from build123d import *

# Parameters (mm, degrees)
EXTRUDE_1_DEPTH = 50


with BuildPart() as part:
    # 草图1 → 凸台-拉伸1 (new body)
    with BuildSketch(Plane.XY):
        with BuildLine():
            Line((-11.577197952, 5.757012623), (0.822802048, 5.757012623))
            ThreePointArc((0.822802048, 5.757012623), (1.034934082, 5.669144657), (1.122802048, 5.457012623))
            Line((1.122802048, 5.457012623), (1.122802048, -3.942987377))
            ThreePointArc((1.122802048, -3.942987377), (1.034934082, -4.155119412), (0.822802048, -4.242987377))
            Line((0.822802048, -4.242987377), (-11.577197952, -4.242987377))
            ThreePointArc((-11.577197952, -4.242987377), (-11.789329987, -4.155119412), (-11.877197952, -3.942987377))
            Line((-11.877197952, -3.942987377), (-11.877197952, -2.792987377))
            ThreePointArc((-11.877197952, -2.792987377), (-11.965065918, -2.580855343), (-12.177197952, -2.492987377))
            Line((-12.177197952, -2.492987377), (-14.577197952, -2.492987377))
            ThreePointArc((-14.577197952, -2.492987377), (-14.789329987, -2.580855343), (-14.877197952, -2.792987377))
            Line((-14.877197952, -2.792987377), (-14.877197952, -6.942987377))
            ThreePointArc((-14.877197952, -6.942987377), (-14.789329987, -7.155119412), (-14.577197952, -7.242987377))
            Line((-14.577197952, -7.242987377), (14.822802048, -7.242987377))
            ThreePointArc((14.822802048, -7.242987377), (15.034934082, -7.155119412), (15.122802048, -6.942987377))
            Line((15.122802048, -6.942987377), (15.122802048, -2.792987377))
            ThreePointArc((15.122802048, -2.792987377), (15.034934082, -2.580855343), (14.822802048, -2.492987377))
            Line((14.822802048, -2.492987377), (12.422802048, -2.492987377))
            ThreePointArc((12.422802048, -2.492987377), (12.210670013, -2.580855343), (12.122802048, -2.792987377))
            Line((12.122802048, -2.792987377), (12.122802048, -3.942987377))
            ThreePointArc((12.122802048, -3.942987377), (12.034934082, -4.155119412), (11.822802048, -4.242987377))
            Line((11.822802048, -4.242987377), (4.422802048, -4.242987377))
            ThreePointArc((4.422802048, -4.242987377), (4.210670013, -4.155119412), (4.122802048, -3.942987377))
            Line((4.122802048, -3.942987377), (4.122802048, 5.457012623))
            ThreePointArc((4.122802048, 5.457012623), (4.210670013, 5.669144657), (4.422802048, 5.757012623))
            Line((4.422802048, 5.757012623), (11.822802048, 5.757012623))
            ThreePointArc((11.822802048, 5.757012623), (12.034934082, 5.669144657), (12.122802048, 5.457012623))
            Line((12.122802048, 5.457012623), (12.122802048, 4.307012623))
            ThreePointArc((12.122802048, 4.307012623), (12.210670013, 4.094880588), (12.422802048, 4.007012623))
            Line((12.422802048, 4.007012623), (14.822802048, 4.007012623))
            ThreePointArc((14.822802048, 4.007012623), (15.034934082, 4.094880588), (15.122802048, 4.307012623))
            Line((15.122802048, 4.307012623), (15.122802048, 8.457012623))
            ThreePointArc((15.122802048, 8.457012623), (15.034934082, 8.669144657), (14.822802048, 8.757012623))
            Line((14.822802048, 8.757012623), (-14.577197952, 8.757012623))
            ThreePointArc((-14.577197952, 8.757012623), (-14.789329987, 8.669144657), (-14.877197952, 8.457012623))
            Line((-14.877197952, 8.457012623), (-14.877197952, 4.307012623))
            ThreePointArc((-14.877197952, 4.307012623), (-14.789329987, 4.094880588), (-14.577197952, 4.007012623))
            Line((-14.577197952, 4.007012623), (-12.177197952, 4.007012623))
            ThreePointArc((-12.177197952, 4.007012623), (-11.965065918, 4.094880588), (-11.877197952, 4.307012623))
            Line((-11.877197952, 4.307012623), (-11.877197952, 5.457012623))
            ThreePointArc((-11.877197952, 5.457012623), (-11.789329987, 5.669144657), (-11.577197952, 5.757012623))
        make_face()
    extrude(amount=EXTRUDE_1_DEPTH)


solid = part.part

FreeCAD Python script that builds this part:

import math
import FreeCAD as App
import Part
import Sketcher
Q = App.Units.Quantity

doc = App.newDocument("Part")
params = doc.addObject("Spreadsheet::Sheet", "Params")
for row, (alias, value) in enumerate([
    ("sketch1_radius", "0.3 mm"),
    ("sketch1_width", "12.4 mm"),
    ("sketch1_width2", "2.4 mm"),
    ("sketch1_width3", "29.4 mm"),
    ("sketch1_width4", "7.4 mm"),
    ("pad1_length", "50 mm"),
], start=1):
    params.set(f"A{row}", alias)
    params.set(f"B{row}", "=" + value)
    params.setAlias(f"B{row}", alias)

body = doc.addObject("PartDesign::Body", "Body")

sketch1 = doc.addObject("Sketcher::SketchObject", "Sketch")
body.addObject(sketch1)
sketch1.AttachmentSupport = (doc.XY_Plane, [""])
sketch1.MapMode = "FlatFace"
sketch1.addGeometry(Part.LineSegment(App.Vector(-11.577198, 5.757013, 0), App.Vector(0.822802, 5.757013, 0)), False)
sketch1.addGeometry(Part.ArcOfCircle(Part.Circle(App.Vector(0.822802, 5.457013, 0), App.Vector(0, 0, 1), 0.3), math.radians(0), math.radians(90)), False)
sketch1.addGeometry(Part.LineSegment(App.Vector(1.122802, 5.457013, 0), App.Vector(1.122802, -3.942987, 0)), False)
sketch1.addGeometry(Part.ArcOfCircle(Part.Circle(App.Vector(0.822802, -3.942987, 0), App.Vector(0, 0, 1), 0.3), math.radians(-90), math.radians(0)), False)
sketch1.addGeometry(Part.LineSegment(App.Vector(0.822802, -4.242987, 0), App.Vector(-11.577198, -4.242987, 0)), False)
sketch1.addGeometry(Part.ArcOfCircle(Part.Circle(App.Vector(-11.577198, -3.942987, 0), App.Vector(0, 0, 1), 0.3), math.radians(180), math.radians(270)), False)
sketch1.addGeometry(Part.LineSegment(App.Vector(-11.877198, -3.942987, 0), App.Vector(-11.877198, -2.792987, 0)), False)
sketch1.addGeometry(Part.ArcOfCircle(Part.Circle(App.Vector(-12.177198, -2.792987, 0), App.Vector(0, 0, 1), 0.3), math.radians(0), math.radians(90)), False)
sketch1.addGeometry(Part.LineSegment(App.Vector(-12.177198, -2.492987, 0), App.Vector(-14.577198, -2.492987, 0)), False)
sketch1.addGeometry(Part.ArcOfCircle(Part.Circle(App.Vector(-14.577198, -2.792987, 0), App.Vector(0, 0, 1), 0.3), math.radians(90), math.radians(180)), False)
sketch1.addGeometry(Part.LineSegment(App.Vector(-14.877198, -2.792987, 0), App.Vector(-14.877198, -6.942987, 0)), False)
sketch1.addGeometry(Part.ArcOfCircle(Part.Circle(App.Vector(-14.577198, -6.942987, 0), App.Vector(0, 0, 1), 0.3), math.radians(180), math.radians(270)), False)
sketch1.addGeometry(Part.LineSegment(App.Vector(-14.577198, -7.242987, 0), App.Vector(14.822802, -7.242987, 0)), False)
sketch1.addGeometry(Part.ArcOfCircle(Part.Circle(App.Vector(14.822802, -6.942987, 0), App.Vector(0, 0, 1), 0.3), math.radians(-90), math.radians(0)), False)
sketch1.addGeometry(Part.LineSegment(App.Vector(15.122802, -6.942987, 0), App.Vector(15.122802, -2.792987, 0)), False)
sketch1.addGeometry(Part.ArcOfCircle(Part.Circle(App.Vector(14.822802, -2.792987, 0), App.Vector(0, 0, 1), 0.3), math.radians(0), math.radians(90)), False)
sketch1.addGeometry(Part.LineSegment(App.Vector(14.822802, -2.492987, 0), App.Vector(12.422802, -2.492987, 0)), False)
sketch1.addGeometry(Part.ArcOfCircle(Part.Circle(App.Vector(12.422802, -2.792987, 0), App.Vector(0, 0, 1), 0.3), math.radians(90), math.radians(180)), False)
sketch1.addGeometry(Part.LineSegment(App.Vector(12.122802, -2.792987, 0), App.Vector(12.122802, -3.942987, 0)), False)
sketch1.addGeometry(Part.ArcOfCircle(Part.Circle(App.Vector(11.822802, -3.942987, 0), App.Vector(0, 0, 1), 0.3), math.radians(-90), math.radians(0)), False)
sketch1.addGeometry(Part.LineSegment(App.Vector(11.822802, -4.242987, 0), App.Vector(4.422802, -4.242987, 0)), False)
sketch1.addGeometry(Part.ArcOfCircle(Part.Circle(App.Vector(4.422802, -3.942987, 0), App.Vector(0, 0, 1), 0.3), math.radians(180), math.radians(270)), False)
sketch1.addGeometry(Part.LineSegment(App.Vector(4.122802, -3.942987, 0), App.Vector(4.122802, 5.457013, 0)), False)
sketch1.addGeometry(Part.ArcOfCircle(Part.Circle(App.Vector(4.422802, 5.457013, 0), App.Vector(0, 0, 1), 0.3), math.radians(90), math.radians(180)), False)
sketch1.addGeometry(Part.LineSegment(App.Vector(4.422802, 5.757013, 0), App.Vector(11.822802, 5.757013, 0)), False)
sketch1.addGeometry(Part.ArcOfCircle(Part.Circle(App.Vector(11.822802, 5.457013, 0), App.Vector(0, 0, 1), 0.3), math.radians(0), math.radians(90)), False)
sketch1.addGeometry(Part.LineSegment(App.Vector(12.122802, 5.457013, 0), App.Vector(12.122802, 4.307013, 0)), False)
sketch1.addGeometry(Part.ArcOfCircle(Part.Circle(App.Vector(12.422802, 4.307013, 0), App.Vector(0, 0, 1), 0.3), math.radians(180), math.radians(270)), False)
sketch1.addGeometry(Part.LineSegment(App.Vector(12.422802, 4.007013, 0), App.Vector(14.822802, 4.007013, 0)), False)
sketch1.addGeometry(Part.ArcOfCircle(Part.Circle(App.Vector(14.822802, 4.307013, 0), App.Vector(0, 0, 1), 0.3), math.radians(-90), math.radians(0)), False)
sketch1.addGeometry(Part.LineSegment(App.Vector(15.122802, 4.307013, 0), App.Vector(15.122802, 8.457013, 0)), False)
sketch1.addGeometry(Part.ArcOfCircle(Part.Circle(App.Vector(14.822802, 8.457013, 0), App.Vector(0, 0, 1), 0.3), math.radians(0), math.radians(90)), False)
sketch1.addGeometry(Part.LineSegment(App.Vector(14.822802, 8.757013, 0), App.Vector(-14.577198, 8.757013, 0)), False)
sketch1.addGeometry(Part.ArcOfCircle(Part.Circle(App.Vector(-14.577198, 8.457013, 0), App.Vector(0, 0, 1), 0.3), math.radians(90), math.radians(180)), False)
sketch1.addGeometry(Part.LineSegment(App.Vector(-14.877198, 8.457013, 0), App.Vector(-14.877198, 4.307013, 0)), False)
sketch1.addGeometry(Part.ArcOfCircle(Part.Circle(App.Vector(-14.577198, 4.307013, 0), App.Vector(0, 0, 1), 0.3), math.radians(180), math.radians(270)), False)
sketch1.addGeometry(Part.LineSegment(App.Vector(-14.577198, 4.007013, 0), App.Vector(-12.177198, 4.007013, 0)), False)
sketch1.addGeometry(Part.ArcOfCircle(Part.Circle(App.Vector(-12.177198, 4.307013, 0), App.Vector(0, 0, 1), 0.3), math.radians(-90), math.radians(0)), False)
sketch1.addGeometry(Part.LineSegment(App.Vector(-11.877198, 4.307013, 0), App.Vector(-11.877198, 5.457013, 0)), False)
sketch1.addGeometry(Part.ArcOfCircle(Part.Circle(App.Vector(-11.577198, 5.457013, 0), App.Vector(0, 0, 1), 0.3), math.radians(90), math.radians(180)), False)
sketch1.addConstraint(Sketcher.Constraint("Tangent", 0, 2, 1, 2))
sketch1.addConstraint(Sketcher.Constraint("Tangent", 1, 1, 2, 1))
sketch1.addConstraint(Sketcher.Constraint("Tangent", 2, 2, 3, 2))
sketch1.addConstraint(Sketcher.Constraint("Tangent", 3, 1, 4, 1))
sketch1.addConstraint(Sketcher.Constraint("Tangent", 4, 2, 5, 2))
sketch1.addConstraint(Sketcher.Constraint("Tangent", 5, 1, 6, 1))
sketch1.addConstraint(Sketcher.Constraint("Tangent", 6, 2, 7, 1))
sketch1.addConstraint(Sketcher.Constraint("Tangent", 7, 2, 8, 1))
sketch1.addConstraint(Sketcher.Constraint("Tangent", 8, 2, 9, 1))
sketch1.addConstraint(Sketcher.Constraint("Tangent", 9, 2, 10, 1))
sketch1.addConstraint(Sketcher.Constraint("Tangent", 10, 2, 11, 1))
sketch1.addConstraint(Sketcher.Constraint("Tangent", 11, 2, 12, 1))
sketch1.addConstraint(Sketcher.Constraint("Tangent", 12, 2, 13, 1))
sketch1.addConstraint(Sketcher.Constraint("Tangent", 13, 2, 14, 1))
sketch1.addConstraint(Sketcher.Constraint("Tangent", 14, 2, 15, 1))
sketch1.addConstraint(Sketcher.Constraint("Tangent", 15, 2, 16, 1))
sketch1.addConstraint(Sketcher.Constraint("Tangent", 16, 2, 17, 1))
sketch1.addConstraint(Sketcher.Constraint("Tangent", 17, 2, 18, 1))
sketch1.addConstraint(Sketcher.Constraint("Tangent", 18, 2, 19, 2))
sketch1.addConstraint(Sketcher.Constraint("Tangent", 19, 1, 20, 1))
sketch1.addConstraint(Sketcher.Constraint("Tangent", 20, 2, 21, 2))
sketch1.addConstraint(Sketcher.Constraint("Tangent", 21, 1, 22, 1))
sketch1.addConstraint(Sketcher.Constraint("Tangent", 22, 2, 23, 2))
sketch1.addConstraint(Sketcher.Constraint("Tangent", 23, 1, 24, 1))
sketch1.addConstraint(Sketcher.Constraint("Tangent", 24, 2, 25, 2))
sketch1.addConstraint(Sketcher.Constraint("Tangent", 25, 1, 26, 1))
sketch1.addConstraint(Sketcher.Constraint("Tangent", 26, 2, 27, 1))
sketch1.addConstraint(Sketcher.Constraint("Tangent", 27, 2, 28, 1))
sketch1.addConstraint(Sketcher.Constraint("Tangent", 28, 2, 29, 1))
sketch1.addConstraint(Sketcher.Constraint("Tangent", 29, 2, 30, 1))
sketch1.addConstraint(Sketcher.Constraint("Tangent", 30, 2, 31, 1))
sketch1.addConstraint(Sketcher.Constraint("Tangent", 31, 2, 32, 1))
sketch1.addConstraint(Sketcher.Constraint("Tangent", 32, 2, 33, 1))
sketch1.addConstraint(Sketcher.Constraint("Tangent", 33, 2, 34, 1))
sketch1.addConstraint(Sketcher.Constraint("Tangent", 34, 2, 35, 1))
sketch1.addConstraint(Sketcher.Constraint("Tangent", 35, 2, 36, 1))
sketch1.addConstraint(Sketcher.Constraint("Tangent", 36, 2, 37, 1))
sketch1.addConstraint(Sketcher.Constraint("Tangent", 37, 2, 38, 1))
sketch1.addConstraint(Sketcher.Constraint("Tangent", 38, 2, 39, 2))
sketch1.addConstraint(Sketcher.Constraint("Tangent", 39, 1, 0, 1))
sketch1.addConstraint(Sketcher.Constraint("Horizontal", 0))
sketch1.addConstraint(Sketcher.Constraint("Vertical", 2))
sketch1.addConstraint(Sketcher.Constraint("Horizontal", 4))
sketch1.addConstraint(Sketcher.Constraint("Vertical", 6))
sketch1.addConstraint(Sketcher.Constraint("Horizontal", 8))
sketch1.addConstraint(Sketcher.Constraint("Vertical", 10))
sketch1.addConstraint(Sketcher.Constraint("Horizontal", 12))
sketch1.addConstraint(Sketcher.Constraint("Vertical", 14))
sketch1.addConstraint(Sketcher.Constraint("Horizontal", 16))
sketch1.addConstraint(Sketcher.Constraint("Vertical", 18))
sketch1.addConstraint(Sketcher.Constraint("Horizontal", 20))
sketch1.addConstraint(Sketcher.Constraint("Vertical", 22))
sketch1.addConstraint(Sketcher.Constraint("Horizontal", 24))
sketch1.addConstraint(Sketcher.Constraint("Vertical", 26))
sketch1.addConstraint(Sketcher.Constraint("Horizontal", 28))
sketch1.addConstraint(Sketcher.Constraint("Vertical", 30))
sketch1.addConstraint(Sketcher.Constraint("Horizontal", 32))
sketch1.addConstraint(Sketcher.Constraint("Vertical", 34))
sketch1.addConstraint(Sketcher.Constraint("Horizontal", 36))
sketch1.addConstraint(Sketcher.Constraint("Vertical", 38))
sketch1.addConstraint(Sketcher.Constraint("Equal", 1, 3))
sketch1.addConstraint(Sketcher.Constraint("Equal", 3, 5))
sketch1.addConstraint(Sketcher.Constraint("Equal", 5, 7))
sketch1.addConstraint(Sketcher.Constraint("Equal", 7, 9))
sketch1.addConstraint(Sketcher.Constraint("Equal", 9, 11))
sketch1.addConstraint(Sketcher.Constraint("Equal", 11, 13))
sketch1.addConstraint(Sketcher.Constraint("Equal", 13, 15))
sketch1.addConstraint(Sketcher.Constraint("Equal", 15, 17))
sketch1.addConstraint(Sketcher.Constraint("Equal", 17, 19))
sketch1.addConstraint(Sketcher.Constraint("Equal", 19, 21))
sketch1.addConstraint(Sketcher.Constraint("Equal", 21, 23))
sketch1.addConstraint(Sketcher.Constraint("Equal", 23, 25))
sketch1.addConstraint(Sketcher.Constraint("Equal", 25, 27))
sketch1.addConstraint(Sketcher.Constraint("Equal", 27, 29))
sketch1.addConstraint(Sketcher.Constraint("Equal", 29, 31))
sketch1.addConstraint(Sketcher.Constraint("Equal", 31, 33))
sketch1.addConstraint(Sketcher.Constraint("Equal", 33, 35))
sketch1.addConstraint(Sketcher.Constraint("Equal", 35, 37))
sketch1.addConstraint(Sketcher.Constraint("Equal", 37, 39))
sketch1.addConstraint(Sketcher.Constraint("Horizontal", 9, 3, 15, 3))
sketch1.addConstraint(Sketcher.Constraint("Horizontal", 5, 3, 19, 3))
sketch1.addConstraint(Sketcher.Constraint("Horizontal", 1, 3, 23, 3))
sketch1.addConstraint(Sketcher.Constraint("Horizontal", 29, 3, 35, 3))
sketch1.addConstraint(Sketcher.Constraint("Vertical", 19, 3, 25, 3))
sketch1.addConstraint(Sketcher.Constraint("Vertical", 15, 3, 29, 3))
sketch1.addConstraint(Sketcher.Constraint("Vertical", 11, 3, 33, 3))
sketch1.addConstraint(Sketcher.Constraint("Vertical", 7, 3, 37, 3))
sketch1.addConstraint(Sketcher.Constraint("Equal", 8, 16))
sketch1.addConstraint(Sketcher.Constraint("Equal", 18, 26))
sketch1.addConstraint(Sketcher.Constraint("Equal", 14, 30))
sketch1.addConstraint(Sketcher.Constraint("Radius", 1, Q("0.3 mm")))
sketch1.addConstraint(Sketcher.Constraint("DistanceX", 0, 1, 0, 2, Q("12.4 mm")))
sketch1.addConstraint(Sketcher.Constraint("DistanceX", 8, 2, 8, 1, Q("2.4 mm")))
sketch1.addConstraint(Sketcher.Constraint("DistanceX", 12, 1, 12, 2, Q("29.4 mm")))
sketch1.addConstraint(Sketcher.Constraint("DistanceX", 20, 2, 20, 1, Q("7.4 mm")))
sketch1.addConstraint(Sketcher.Constraint("DistanceY", 2, 2, 2, 1, Q("9.4 mm")))
sketch1.addConstraint(Sketcher.Constraint("DistanceY", 11, 3, 5, 3, Q("3 mm")))
sketch1.addConstraint(Sketcher.Constraint("DistanceY", 6, 1, 6, 2, Q("1.15 mm")))
sketch1.addConstraint(Sketcher.Constraint("DistanceX", -1, 1, 1, 3, Q("0.822802 mm")))
sketch1.addConstraint(Sketcher.Constraint("DistanceY", -1, 1, 1, 3, Q("5.457013 mm")))
sketch1.setExpression("Constraints[90]", "Params.sketch1_radius")
sketch1.setExpression("Constraints[91]", "Params.sketch1_width")
sketch1.setExpression("Constraints[92]", "Params.sketch1_width2")
sketch1.setExpression("Constraints[93]", "Params.sketch1_width3")
sketch1.setExpression("Constraints[94]", "Params.sketch1_width4")
pad1 = doc.addObject("PartDesign::Pad", "Pad")
body.addObject(pad1)
pad1.Profile = sketch1
pad1.setExpression("Length", "Params.pad1_length")

doc.recompute()
